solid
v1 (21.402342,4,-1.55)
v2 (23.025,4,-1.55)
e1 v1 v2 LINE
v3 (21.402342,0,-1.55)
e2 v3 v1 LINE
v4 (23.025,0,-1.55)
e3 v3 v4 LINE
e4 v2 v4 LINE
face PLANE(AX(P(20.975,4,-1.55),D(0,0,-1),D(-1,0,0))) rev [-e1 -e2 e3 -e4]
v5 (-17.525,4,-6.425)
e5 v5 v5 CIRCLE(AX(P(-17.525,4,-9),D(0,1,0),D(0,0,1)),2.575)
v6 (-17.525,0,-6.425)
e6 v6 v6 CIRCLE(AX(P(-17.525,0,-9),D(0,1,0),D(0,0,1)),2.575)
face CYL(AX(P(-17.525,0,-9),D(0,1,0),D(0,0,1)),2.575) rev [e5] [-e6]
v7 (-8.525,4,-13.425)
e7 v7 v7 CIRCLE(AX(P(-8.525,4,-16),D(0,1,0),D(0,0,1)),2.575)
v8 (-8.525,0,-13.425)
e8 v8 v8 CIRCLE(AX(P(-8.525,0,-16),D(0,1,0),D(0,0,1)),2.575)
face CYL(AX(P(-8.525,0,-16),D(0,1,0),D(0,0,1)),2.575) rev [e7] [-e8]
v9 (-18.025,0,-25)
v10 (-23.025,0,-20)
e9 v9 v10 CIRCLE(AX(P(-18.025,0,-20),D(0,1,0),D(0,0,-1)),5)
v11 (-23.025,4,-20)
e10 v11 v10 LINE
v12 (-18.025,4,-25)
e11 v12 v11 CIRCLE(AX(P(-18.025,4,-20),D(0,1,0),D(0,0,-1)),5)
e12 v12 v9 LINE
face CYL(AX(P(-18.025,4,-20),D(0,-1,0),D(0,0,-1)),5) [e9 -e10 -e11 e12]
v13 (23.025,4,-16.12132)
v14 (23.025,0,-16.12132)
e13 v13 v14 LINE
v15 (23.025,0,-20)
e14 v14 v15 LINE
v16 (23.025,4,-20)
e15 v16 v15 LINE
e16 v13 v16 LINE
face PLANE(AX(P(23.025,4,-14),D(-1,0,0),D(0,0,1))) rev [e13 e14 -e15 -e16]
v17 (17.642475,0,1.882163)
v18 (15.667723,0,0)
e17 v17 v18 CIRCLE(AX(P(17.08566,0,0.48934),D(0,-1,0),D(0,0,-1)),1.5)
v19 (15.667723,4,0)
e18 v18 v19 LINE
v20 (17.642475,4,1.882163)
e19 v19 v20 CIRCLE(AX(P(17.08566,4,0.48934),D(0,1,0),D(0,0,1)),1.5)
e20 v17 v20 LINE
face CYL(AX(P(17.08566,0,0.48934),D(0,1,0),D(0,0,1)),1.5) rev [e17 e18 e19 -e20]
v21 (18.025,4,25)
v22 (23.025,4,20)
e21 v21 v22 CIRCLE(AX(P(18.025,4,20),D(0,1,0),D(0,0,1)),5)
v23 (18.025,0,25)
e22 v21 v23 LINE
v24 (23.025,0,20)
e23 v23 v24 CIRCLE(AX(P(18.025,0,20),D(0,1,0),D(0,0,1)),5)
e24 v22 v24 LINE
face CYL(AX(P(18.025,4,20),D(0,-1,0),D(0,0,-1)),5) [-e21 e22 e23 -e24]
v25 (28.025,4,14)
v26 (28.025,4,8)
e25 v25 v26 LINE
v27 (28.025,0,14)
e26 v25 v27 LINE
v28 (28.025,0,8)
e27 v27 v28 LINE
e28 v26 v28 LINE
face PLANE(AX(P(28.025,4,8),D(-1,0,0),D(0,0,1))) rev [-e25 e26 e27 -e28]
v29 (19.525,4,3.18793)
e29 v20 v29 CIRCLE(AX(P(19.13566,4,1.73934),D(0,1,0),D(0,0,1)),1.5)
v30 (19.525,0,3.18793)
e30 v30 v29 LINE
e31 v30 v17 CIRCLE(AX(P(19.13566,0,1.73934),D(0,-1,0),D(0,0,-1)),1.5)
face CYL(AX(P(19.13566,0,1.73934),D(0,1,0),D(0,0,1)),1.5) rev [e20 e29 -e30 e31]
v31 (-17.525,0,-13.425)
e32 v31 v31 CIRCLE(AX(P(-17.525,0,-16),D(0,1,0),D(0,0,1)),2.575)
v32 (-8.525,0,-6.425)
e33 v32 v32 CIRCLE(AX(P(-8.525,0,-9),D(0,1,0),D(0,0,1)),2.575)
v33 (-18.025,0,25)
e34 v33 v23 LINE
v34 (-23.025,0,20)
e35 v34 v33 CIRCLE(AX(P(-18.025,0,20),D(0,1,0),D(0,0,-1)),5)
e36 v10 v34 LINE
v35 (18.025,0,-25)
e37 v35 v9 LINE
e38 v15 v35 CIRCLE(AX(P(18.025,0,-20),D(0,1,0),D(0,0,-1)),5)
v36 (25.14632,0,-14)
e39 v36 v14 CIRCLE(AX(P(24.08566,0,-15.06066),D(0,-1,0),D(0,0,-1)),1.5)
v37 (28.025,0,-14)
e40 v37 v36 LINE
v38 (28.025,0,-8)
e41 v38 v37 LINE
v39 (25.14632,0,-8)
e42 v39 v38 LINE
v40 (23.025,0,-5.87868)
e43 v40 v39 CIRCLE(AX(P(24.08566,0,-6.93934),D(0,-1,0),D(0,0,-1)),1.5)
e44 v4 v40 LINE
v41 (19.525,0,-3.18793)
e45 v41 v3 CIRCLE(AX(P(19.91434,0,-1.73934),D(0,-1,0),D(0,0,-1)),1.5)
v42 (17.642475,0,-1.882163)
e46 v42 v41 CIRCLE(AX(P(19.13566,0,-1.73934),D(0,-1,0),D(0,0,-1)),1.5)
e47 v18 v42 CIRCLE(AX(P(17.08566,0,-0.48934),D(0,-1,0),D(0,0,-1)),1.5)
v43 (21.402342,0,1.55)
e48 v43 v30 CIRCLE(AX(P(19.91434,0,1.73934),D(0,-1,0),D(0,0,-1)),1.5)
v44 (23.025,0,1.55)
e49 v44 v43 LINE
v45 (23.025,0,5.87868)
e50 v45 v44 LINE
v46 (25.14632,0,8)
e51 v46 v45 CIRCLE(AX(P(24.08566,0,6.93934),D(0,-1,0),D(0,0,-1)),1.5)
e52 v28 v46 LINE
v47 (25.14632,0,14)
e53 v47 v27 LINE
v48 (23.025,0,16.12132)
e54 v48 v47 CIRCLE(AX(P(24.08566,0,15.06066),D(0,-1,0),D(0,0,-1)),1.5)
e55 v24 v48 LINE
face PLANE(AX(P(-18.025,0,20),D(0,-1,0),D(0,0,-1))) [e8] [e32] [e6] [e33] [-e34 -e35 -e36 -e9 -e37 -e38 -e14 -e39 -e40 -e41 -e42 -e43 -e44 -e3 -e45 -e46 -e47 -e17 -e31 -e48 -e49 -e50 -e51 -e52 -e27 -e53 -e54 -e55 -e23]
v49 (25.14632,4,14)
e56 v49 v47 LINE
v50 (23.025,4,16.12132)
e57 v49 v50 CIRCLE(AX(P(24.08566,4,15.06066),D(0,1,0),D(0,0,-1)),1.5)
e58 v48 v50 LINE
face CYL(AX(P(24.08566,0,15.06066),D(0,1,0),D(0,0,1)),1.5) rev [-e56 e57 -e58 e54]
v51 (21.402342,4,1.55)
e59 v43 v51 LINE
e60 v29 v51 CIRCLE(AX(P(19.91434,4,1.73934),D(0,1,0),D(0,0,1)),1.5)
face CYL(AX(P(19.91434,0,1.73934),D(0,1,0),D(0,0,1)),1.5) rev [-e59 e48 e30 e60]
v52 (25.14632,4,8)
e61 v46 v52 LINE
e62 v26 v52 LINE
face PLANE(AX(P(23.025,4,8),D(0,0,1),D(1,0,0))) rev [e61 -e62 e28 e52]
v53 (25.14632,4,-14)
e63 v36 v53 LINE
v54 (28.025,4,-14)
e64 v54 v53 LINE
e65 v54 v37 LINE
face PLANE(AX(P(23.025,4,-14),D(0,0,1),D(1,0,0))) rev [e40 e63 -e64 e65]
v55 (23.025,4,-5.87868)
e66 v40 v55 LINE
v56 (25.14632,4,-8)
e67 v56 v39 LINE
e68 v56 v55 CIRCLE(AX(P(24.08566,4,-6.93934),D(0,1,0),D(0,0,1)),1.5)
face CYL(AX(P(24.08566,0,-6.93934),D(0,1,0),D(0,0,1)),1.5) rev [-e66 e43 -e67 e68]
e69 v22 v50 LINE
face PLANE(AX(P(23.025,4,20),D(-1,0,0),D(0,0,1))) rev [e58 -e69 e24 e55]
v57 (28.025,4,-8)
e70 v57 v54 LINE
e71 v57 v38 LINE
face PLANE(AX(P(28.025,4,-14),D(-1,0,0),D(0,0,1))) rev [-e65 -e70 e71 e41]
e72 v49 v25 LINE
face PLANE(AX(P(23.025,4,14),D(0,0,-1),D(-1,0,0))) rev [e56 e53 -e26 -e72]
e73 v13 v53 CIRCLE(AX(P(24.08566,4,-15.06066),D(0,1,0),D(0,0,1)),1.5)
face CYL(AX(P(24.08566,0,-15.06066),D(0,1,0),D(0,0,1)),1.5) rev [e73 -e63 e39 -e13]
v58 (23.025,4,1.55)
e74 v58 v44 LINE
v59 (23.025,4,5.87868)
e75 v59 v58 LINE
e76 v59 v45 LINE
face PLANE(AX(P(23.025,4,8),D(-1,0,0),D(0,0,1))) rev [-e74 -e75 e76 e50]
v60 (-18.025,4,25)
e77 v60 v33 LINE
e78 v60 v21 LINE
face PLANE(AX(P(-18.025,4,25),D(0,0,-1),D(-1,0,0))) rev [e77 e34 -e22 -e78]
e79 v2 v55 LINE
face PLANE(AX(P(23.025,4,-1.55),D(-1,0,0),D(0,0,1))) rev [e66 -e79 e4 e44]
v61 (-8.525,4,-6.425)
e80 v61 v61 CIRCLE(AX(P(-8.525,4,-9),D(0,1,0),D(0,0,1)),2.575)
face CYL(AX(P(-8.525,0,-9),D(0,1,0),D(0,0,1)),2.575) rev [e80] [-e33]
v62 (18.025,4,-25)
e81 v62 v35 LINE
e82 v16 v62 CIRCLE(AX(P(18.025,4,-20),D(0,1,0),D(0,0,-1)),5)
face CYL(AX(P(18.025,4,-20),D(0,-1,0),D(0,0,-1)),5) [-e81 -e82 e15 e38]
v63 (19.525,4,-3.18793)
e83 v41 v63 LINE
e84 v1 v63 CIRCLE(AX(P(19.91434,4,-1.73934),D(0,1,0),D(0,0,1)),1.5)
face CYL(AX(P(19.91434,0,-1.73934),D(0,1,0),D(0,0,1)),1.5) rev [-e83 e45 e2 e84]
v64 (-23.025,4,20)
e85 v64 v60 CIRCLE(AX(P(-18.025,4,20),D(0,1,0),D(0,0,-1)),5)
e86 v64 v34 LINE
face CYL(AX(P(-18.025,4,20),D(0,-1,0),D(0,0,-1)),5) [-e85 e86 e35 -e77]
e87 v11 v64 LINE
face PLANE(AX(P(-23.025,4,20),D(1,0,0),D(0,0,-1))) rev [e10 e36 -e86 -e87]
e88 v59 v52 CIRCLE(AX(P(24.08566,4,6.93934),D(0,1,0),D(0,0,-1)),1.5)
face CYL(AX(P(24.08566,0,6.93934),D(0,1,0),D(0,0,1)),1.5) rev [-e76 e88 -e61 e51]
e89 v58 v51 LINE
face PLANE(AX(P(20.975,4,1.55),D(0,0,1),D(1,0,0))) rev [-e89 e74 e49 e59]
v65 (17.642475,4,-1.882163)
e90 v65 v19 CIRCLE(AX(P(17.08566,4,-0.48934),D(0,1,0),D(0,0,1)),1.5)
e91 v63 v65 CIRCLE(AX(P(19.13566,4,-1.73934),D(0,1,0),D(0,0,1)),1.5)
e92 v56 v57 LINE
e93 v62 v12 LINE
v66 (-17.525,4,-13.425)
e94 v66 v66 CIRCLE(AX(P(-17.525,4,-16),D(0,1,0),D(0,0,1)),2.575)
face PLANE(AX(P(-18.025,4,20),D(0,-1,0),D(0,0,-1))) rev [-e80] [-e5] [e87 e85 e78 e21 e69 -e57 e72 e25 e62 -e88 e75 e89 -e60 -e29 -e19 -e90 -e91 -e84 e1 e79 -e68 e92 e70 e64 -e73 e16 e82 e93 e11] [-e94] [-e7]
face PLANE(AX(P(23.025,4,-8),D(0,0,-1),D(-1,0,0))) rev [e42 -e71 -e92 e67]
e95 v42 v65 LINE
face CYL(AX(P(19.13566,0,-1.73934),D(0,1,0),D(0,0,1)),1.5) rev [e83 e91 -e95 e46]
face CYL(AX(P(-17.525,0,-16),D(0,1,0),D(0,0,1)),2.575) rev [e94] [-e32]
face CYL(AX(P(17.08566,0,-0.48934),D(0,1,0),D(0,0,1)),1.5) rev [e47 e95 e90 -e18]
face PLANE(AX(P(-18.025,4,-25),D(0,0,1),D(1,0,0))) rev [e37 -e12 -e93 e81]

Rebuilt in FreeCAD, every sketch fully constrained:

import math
import FreeCAD as App
import Part
import Sketcher

V = App.Vector

doc = App.newDocument("Part")
body = doc.addObject("PartDesign::Body", "Body")

# Sketch on XZ plane
sketch1 = body.newObject("Sketcher::SketchObject", "Sketch")
sketch1.AttachmentSupport = (doc.getObject("XZ_Plane"), [""])
sketch1.MapMode = "FlatFace"
sketch1.addGeometry([
    Part.LineSegment(V(-18.025, 25, 0), V(18.025, 25, 0)),  # 0
    Part.ArcOfCircle(Part.Circle(V(18.025, 20, 0), V(0, 0, 1), 5), math.radians(0), math.radians(90)),  # 1
    Part.LineSegment(V(23.025, 20, 0), V(23.025, 14, 0)),  # 2
    Part.LineSegment(V(23.025, 14, 0), V(28.025, 14, 0)),  # 3
    Part.LineSegment(V(28.025, 14, 0), V(28.025, 8, 0)),  # 4
    Part.LineSegment(V(28.025, 8, 0), V(23.025, 8, 0)),  # 5
    Part.LineSegment(V(23.025, 8, 0), V(23.025, 1.55, 0)),  # 6
    Part.LineSegment(V(23.025, 1.55, 0), V(20.975, 1.55, 0)),  # 7
    Part.LineSegment(V(20.975, 1.55, 0), V(20.975, 2.8, 0)),  # 8
    Part.LineSegment(V(20.975, 2.8, 0), V(18.075, 2.8, 0)),  # 9
    Part.LineSegment(V(18.075, 2.8, 0), V(18.075, 1.55, 0)),  # 10
    Part.LineSegment(V(18.075, 1.55, 0), V(16.025, 1.55, 0)),  # 11
    Part.LineSegment(V(16.025, 1.55, 0), V(16.025, -1.55, 0)),  # 12
    Part.LineSegment(V(16.025, -1.55, 0), V(18.075, -1.55, 0)),  # 13
    Part.LineSegment(V(18.075, -1.55, 0), V(18.075, -2.8, 0)),  # 14
    Part.LineSegment(V(18.075, -2.8, 0), V(20.975, -2.8, 0)),  # 15
    Part.LineSegment(V(20.975, -2.8, 0), V(20.975, -1.55, 0)),  # 16
    Part.LineSegment(V(20.975, -1.55, 0), V(23.025, -1.55, 0)),  # 17
    Part.LineSegment(V(23.025, -1.55, 0), V(23.025, -8, 0)),  # 18
    Part.LineSegment(V(23.025, -8, 0), V(28.025, -8, 0)),  # 19
    Part.LineSegment(V(28.025, -8, 0), V(28.025, -14, 0)),  # 20
    Part.LineSegment(V(28.025, -14, 0), V(23.025, -14, 0)),  # 21
    Part.LineSegment(V(23.025, -14, 0), V(23.025, -20, 0)),  # 22
    Part.ArcOfCircle(Part.Circle(V(18.025, -20, 0), V(0, 0, 1), 5), math.radians(-90), math.radians(0)),  # 23
    Part.LineSegment(V(18.025, -25, 0), V(-18.025, -25, 0)),  # 24
    Part.ArcOfCircle(Part.Circle(V(-18.025, -20, 0), V(0, 0, 1), 5), math.radians(180), math.radians(270)),  # 25
    Part.LineSegment(V(-23.025, -20, 0), V(-23.025, 20, 0)),  # 26
    Part.ArcOfCircle(Part.Circle(V(-18.025, 20, 0), V(0, 0, 1), 5), math.radians(90), math.radians(180)),  # 27
], False)
sketch1.addConstraint([
    Sketcher.Constraint("Tangent", 0, 2, 1, 2),
    Sketcher.Constraint("Tangent", 1, 1, 2, 1),
    Sketcher.Constraint("Coincident", 2, 2, 3, 1),
    Sketcher.Constraint("Coincident", 3, 2, 4, 1),
    Sketcher.Constraint("Coincident", 4, 2, 5, 1),
    Sketcher.Constraint("Coincident", 5, 2, 6, 1),
    Sketcher.Constraint("Coincident", 6, 2, 7, 1),
    Sketcher.Constraint("Coincident", 7, 2, 8, 1),
    Sketcher.Constraint("Coincident", 8, 2, 9, 1),
    Sketcher.Constraint("Coincident", 9, 2, 10, 1),
    Sketcher.Constraint("Coincident", 10, 2, 11, 1),
    Sketcher.Constraint("Coincident", 11, 2, 12, 1),
    Sketcher.Constraint("Coincident", 12, 2, 13, 1),
    Sketcher.Constraint("Coincident", 13, 2, 14, 1),
    Sketcher.Constraint("Coincident", 14, 2, 15, 1),
    Sketcher.Constraint("Coincident", 15, 2, 16, 1),
    Sketcher.Constraint("Coincident", 16, 2, 17, 1),
    Sketcher.Constraint("Coincident", 17, 2, 18, 1),
    Sketcher.Constraint("Coincident", 18, 2, 19, 1),
    Sketcher.Constraint("Coincident", 19, 2, 20, 1),
    Sketcher.Constraint("Coincident", 20, 2, 21, 1),
    Sketcher.Constraint("Coincident", 21, 2, 22, 1),
    Sketcher.Constraint("Tangent", 22, 2, 23, 2),
    Sketcher.Constraint("Tangent", 23, 1, 24, 1),
    Sketcher.Constraint("Tangent", 24, 2, 25, 2),
    Sketcher.Constraint("Tangent", 25, 1, 26, 1),
    Sketcher.Constraint("Tangent", 26, 2, 27, 2),
    Sketcher.Constraint("Tangent", 27, 1, 0, 1),
    Sketcher.Constraint("Horizontal", 0),
    Sketcher.Constraint("Vertical", 2),
    Sketcher.Constraint("Horizontal", 3),
    Sketcher.Constraint("Vertical", 4),
    Sketcher.Constraint("Horizontal", 5),
    Sketcher.Constraint("Vertical", 6),
    Sketcher.Constraint("Horizontal", 7),
    Sketcher.Constraint("Vertical", 8),
    Sketcher.Constraint("Horizontal", 9),
    Sketcher.Constraint("Vertical", 10),
    Sketcher.Constraint("Horizontal", 11),
    Sketcher.Constraint("Vertical", 12),
    Sketcher.Constraint("Horizontal", 13),
    Sketcher.Constraint("Vertical", 14),
    Sketcher.Constraint("Horizontal", 15),
    Sketcher.Constraint("Vertical", 16),
    Sketcher.Constraint("Horizontal", 17),
    Sketcher.Constraint("Vertical", 18),
    Sketcher.Constraint("Horizontal", 19),
    Sketcher.Constraint("Vertical", 20),
    Sketcher.Constraint("Horizontal", 21),
    Sketcher.Constraint("Vertical", 22),
    Sketcher.Constraint("Horizontal", 24),
    Sketcher.Constraint("Vertical", 26),
    Sketcher.Constraint("Equal", 1, 23),
    Sketcher.Constraint("Equal", 23, 25),
    Sketcher.Constraint("Equal", 25, 27),
    Sketcher.Constraint("Symmetric", 1, 3, 25, 3, -1, 1),
    Sketcher.Constraint("Symmetric", 10, 2, 13, 2, -1),
    Sketcher.Constraint("Symmetric", 8, 2, 15, 2, -1),
    Sketcher.Constraint("Symmetric", 6, 2, 17, 2, -1),
    Sketcher.Constraint("Symmetric", 4, 2, 19, 2, -1),
    Sketcher.Constraint("Symmetric", 2, 2, 21, 2, -1),
    Sketcher.Constraint("Horizontal", 7, 2, 10, 2),
    Sketcher.Constraint("Vertical", 2, 2, 5, 2),
    Sketcher.Constraint("Equal", 7, 11),
    Sketcher.Constraint("Equal", 2, 4),
    Sketcher.Constraint("Radius", 1, 5.0),
    Sketcher.Constraint("DistanceX", 3, 1, 3, 2, 5.0),
    Sketcher.Constraint("DistanceY", 2, 2, 2, 1, 6.0),
    Sketcher.Constraint("DistanceY", 26, 1, 26, 2, 40.0),
    Sketcher.Constraint("DistanceX", 9, 2, 9, 1, 2.9),
    Sketcher.Constraint("DistanceY", 12, 2, 12, 1, 3.1),
    Sketcher.Constraint("DistanceX", 11, 2, 6, 2, 7.0),
    Sketcher.Constraint("DistanceX", 0, 1, 0, 2, 36.05),
    Sketcher.Constraint("DistanceY", 8, 1, 8, 2, 1.25),
])
pad1 = body.newObject("PartDesign::Pad", "Pad")
pad1.Profile = sketch1
pad1.Length = 4
pad1.Reversed = True

# Sketch on XZ plane
sketch2 = body.newObject("Sketcher::SketchObject", "Sketch001")
sketch2.AttachmentSupport = (doc.getObject("XZ_Plane"), [""])
sketch2.MapMode = "FlatFace"
sketch2.AttachmentOffset = App.Placement(V(0, 0, -4), App.Rotation())
sketch2.addGeometry([
    Part.LineSegment(V(23.025, -1.55, 0), V(21.402342, -1.55, 0)),  # 0
    Part.ArcOfCircle(Part.Circle(V(19.91434, -1.73934, 0), V(0, 0, 1), 1.5), math.radians(-105.043949), math.radians(7.251593)),  # 1
    Part.ArcOfCircle(Part.Circle(V(19.13566, -1.73934, 0), V(0, 0, 1), 1.5), math.radians(-174.53627), math.radians(-74.956051)),  # 2
    Part.ArcOfCircle(Part.Circle(V(17.08566, -0.48934, 0), V(0, 0, 1), 1.5), math.radians(160.960098), math.radians(291.79026)),  # 3
    Part.ArcOfCircle(Part.Circle(V(17.08566, 0.48934, 0), V(0, 0, 1), 1.5), math.radians(68.20974), math.radians(199.039902)),  # 4
    Part.ArcOfCircle(Part.Circle(V(19.13566, 1.73934, 0), V(0, 0, 1), 1.5), math.radians(74.956051), math.radians(174.53627)),  # 5
    Part.ArcOfCircle(Part.Circle(V(19.91434, 1.73934, 0), V(0, 0, 1), 1.5), math.radians(-7.251593), math.radians(105.043949)),  # 6
    Part.LineSegment(V(21.402342, 1.55, 0), V(23.025, 1.55, 0)),  # 7
    Part.LineSegment(V(23.025, 1.55, 0), V(23.025, -1.55, 0)),  # 8
], False)
sketch2.addConstraint([
    Sketcher.Constraint("Coincident", 0, 2, 1, 2),
    Sketcher.Constraint("Coincident", 1, 1, 2, 2),
    Sketcher.Constraint("Coincident", 2, 1, 3, 2),
    Sketcher.Constraint("Coincident", 3, 1, 4, 2),
    Sketcher.Constraint("Coincident", 4, 1, 5, 2),
    Sketcher.Constraint("Coincident", 5, 1, 6, 2),
    Sketcher.Constraint("Coincident", 6, 1, 7, 1),
    Sketcher.Constraint("Coincident", 7, 2, 8, 1),
    Sketcher.Constraint("Coincident", 8, 2, 0, 1),
    Sketcher.Constraint("Horizontal", 0),
    Sketcher.Constraint("Horizontal", 7),
    Sketcher.Constraint("Vertical", 8),
    Sketcher.Constraint("Equal", 1, 2),
    Sketcher.Constraint("Equal", 2, 3),
    Sketcher.Constraint("Equal", 3, 4),
    Sketcher.Constraint("Equal", 4, 5),
    Sketcher.Constraint("Equal", 5, 6),
    Sketcher.Constraint("Symmetric", 3, 3, 4, 3, -1),
    Sketcher.Constraint("Symmetric", 2, 3, 5, 3, -1),
    Sketcher.Constraint("Symmetric", 1, 3, 6, 3, -1),
    Sketcher.Constraint("Horizontal", 1, 3, 2, 3),
    Sketcher.Constraint("Vertical", 0, 2, 6, 1),
    Sketcher.Constraint("Radius", 1, 1.5),
    Sketcher.Constraint("DistanceY", 8, 2, 8, 1, 3.1),
    Sketcher.Constraint("DistanceX", 5, 1, 7, 2, 3.5),
    Sketcher.Constraint("DistanceX", 3, 3, 2, 3, 2.05),
    Sketcher.Constraint("DistanceY", 2, 3, 3, 3, 1.25),
    Sketcher.Constraint("DistanceX", -1, 1, 1, 1, 19.525),
    Sketcher.Constraint("DistanceX", 0, 2, 0, 1, 1.622658),
    Sketcher.Constraint("DistanceX", -1, 1, 1, 3, 19.91434),
])
pocket1 = body.newObject("PartDesign::Pocket", "Pocket")
pocket1.Profile = sketch2
pocket1.Type = "ThroughAll"
pocket1.Reversed = True

# Sketch on XZ plane
sketch3 = body.newObject("Sketcher::SketchObject", "Sketch002")
sketch3.AttachmentSupport = (doc.getObject("XZ_Plane"), [""])
sketch3.MapMode = "FlatFace"
sketch3.AttachmentOffset = App.Placement(V(0, 0, -4), App.Rotation())
sketch3.addGeometry([
    Part.Circle(V(24.08566, -15.06066, 0), V(0, 0, 1), 1.5),
    Part.Circle(V(24.08566, -6.93934, 0), V(0, 0, 1), 1.5),
    Part.Circle(V(24.08566, 15.06066, 0), V(0, 0, 1), 1.5),
    Part.Circle(V(24.08566, 6.93934, 0), V(0, 0, 1), 1.5),
], False)
sketch3.addConstraint([
    Sketcher.Constraint("Equal", 0, 1),
    Sketcher.Constraint("Equal", 1, 2),
    Sketcher.Constraint("Equal", 2, 3),
    Sketcher.Constraint("Symmetric", 0, 3, 2, 3, -1),
    Sketcher.Constraint("Symmetric", 1, 3, 3, 3, -1),
    Sketcher.Constraint("Vertical", 0, 3, 1, 3),
    Sketcher.Constraint("Diameter", 0, 3.0),
    Sketcher.Constraint("DistanceY", 1, 3, 2, 3, 22.0),
    Sketcher.Constraint("DistanceX", -1, 1, 0, 3, 24.08566),
    Sketcher.Constraint("DistanceY", 0, 3, -1, 1, 15.06066),
])
pocket2 = body.newObject("PartDesign::Pocket", "Pocket001")
pocket2.Profile = sketch3
pocket2.Type = "ThroughAll"
pocket2.Reversed = True

# Sketch on XZ plane
sketch4 = body.newObject("Sketcher::SketchObject", "Sketch003")
sketch4.AttachmentSupport = (doc.getObject("XZ_Plane"), [""])
sketch4.MapMode = "FlatFace"
sketch4.AttachmentOffset = App.Placement(V(0, 0, -4), App.Rotation())
sketch4.addGeometry([
    Part.Circle(V(-17.525, -16, 0), V(0, 0, 1), 2.575),
    Part.Circle(V(-8.525, -16, 0), V(0, 0, 1), 2.575),
    Part.Circle(V(-8.525, -9, 0), V(0, 0, 1), 2.575),
    Part.Circle(V(-17.525, -9, 0), V(0, 0, 1), 2.575),
], False)
sketch4.addConstraint([
    Sketcher.Constraint("Equal", 0, 1),
    Sketcher.Constraint("Equal", 1, 2),
    Sketcher.Constraint("Equal", 2, 3),
    Sketcher.Constraint("Horizontal", 0, 3, 1, 3),
    Sketcher.Constraint("Horizontal", 2, 3, 3, 3),
    Sketcher.Constraint("Vertical", 1, 3, 2, 3),
    Sketcher.Constraint("Vertical", 0, 3, 3, 3),
    Sketcher.Constraint("Diameter", 0, 5.15),
    Sketcher.Constraint("DistanceY", 0, 3, -1, 1, 16.0),
    Sketcher.Constraint("DistanceY", 2, 3, -1, 1, 9.0),
    Sketcher.Constraint("DistanceX", 0, 3, 1, 3, 9.0),
    Sketcher.Constraint("DistanceX", 0, 3, -1, 1, 17.525),
])
pocket3 = body.newObject("PartDesign::Pocket", "Pocket002")
pocket3.Profile = sketch4
pocket3.Type = "ThroughAll"
pocket3.Reversed = True

doc.recompute()
